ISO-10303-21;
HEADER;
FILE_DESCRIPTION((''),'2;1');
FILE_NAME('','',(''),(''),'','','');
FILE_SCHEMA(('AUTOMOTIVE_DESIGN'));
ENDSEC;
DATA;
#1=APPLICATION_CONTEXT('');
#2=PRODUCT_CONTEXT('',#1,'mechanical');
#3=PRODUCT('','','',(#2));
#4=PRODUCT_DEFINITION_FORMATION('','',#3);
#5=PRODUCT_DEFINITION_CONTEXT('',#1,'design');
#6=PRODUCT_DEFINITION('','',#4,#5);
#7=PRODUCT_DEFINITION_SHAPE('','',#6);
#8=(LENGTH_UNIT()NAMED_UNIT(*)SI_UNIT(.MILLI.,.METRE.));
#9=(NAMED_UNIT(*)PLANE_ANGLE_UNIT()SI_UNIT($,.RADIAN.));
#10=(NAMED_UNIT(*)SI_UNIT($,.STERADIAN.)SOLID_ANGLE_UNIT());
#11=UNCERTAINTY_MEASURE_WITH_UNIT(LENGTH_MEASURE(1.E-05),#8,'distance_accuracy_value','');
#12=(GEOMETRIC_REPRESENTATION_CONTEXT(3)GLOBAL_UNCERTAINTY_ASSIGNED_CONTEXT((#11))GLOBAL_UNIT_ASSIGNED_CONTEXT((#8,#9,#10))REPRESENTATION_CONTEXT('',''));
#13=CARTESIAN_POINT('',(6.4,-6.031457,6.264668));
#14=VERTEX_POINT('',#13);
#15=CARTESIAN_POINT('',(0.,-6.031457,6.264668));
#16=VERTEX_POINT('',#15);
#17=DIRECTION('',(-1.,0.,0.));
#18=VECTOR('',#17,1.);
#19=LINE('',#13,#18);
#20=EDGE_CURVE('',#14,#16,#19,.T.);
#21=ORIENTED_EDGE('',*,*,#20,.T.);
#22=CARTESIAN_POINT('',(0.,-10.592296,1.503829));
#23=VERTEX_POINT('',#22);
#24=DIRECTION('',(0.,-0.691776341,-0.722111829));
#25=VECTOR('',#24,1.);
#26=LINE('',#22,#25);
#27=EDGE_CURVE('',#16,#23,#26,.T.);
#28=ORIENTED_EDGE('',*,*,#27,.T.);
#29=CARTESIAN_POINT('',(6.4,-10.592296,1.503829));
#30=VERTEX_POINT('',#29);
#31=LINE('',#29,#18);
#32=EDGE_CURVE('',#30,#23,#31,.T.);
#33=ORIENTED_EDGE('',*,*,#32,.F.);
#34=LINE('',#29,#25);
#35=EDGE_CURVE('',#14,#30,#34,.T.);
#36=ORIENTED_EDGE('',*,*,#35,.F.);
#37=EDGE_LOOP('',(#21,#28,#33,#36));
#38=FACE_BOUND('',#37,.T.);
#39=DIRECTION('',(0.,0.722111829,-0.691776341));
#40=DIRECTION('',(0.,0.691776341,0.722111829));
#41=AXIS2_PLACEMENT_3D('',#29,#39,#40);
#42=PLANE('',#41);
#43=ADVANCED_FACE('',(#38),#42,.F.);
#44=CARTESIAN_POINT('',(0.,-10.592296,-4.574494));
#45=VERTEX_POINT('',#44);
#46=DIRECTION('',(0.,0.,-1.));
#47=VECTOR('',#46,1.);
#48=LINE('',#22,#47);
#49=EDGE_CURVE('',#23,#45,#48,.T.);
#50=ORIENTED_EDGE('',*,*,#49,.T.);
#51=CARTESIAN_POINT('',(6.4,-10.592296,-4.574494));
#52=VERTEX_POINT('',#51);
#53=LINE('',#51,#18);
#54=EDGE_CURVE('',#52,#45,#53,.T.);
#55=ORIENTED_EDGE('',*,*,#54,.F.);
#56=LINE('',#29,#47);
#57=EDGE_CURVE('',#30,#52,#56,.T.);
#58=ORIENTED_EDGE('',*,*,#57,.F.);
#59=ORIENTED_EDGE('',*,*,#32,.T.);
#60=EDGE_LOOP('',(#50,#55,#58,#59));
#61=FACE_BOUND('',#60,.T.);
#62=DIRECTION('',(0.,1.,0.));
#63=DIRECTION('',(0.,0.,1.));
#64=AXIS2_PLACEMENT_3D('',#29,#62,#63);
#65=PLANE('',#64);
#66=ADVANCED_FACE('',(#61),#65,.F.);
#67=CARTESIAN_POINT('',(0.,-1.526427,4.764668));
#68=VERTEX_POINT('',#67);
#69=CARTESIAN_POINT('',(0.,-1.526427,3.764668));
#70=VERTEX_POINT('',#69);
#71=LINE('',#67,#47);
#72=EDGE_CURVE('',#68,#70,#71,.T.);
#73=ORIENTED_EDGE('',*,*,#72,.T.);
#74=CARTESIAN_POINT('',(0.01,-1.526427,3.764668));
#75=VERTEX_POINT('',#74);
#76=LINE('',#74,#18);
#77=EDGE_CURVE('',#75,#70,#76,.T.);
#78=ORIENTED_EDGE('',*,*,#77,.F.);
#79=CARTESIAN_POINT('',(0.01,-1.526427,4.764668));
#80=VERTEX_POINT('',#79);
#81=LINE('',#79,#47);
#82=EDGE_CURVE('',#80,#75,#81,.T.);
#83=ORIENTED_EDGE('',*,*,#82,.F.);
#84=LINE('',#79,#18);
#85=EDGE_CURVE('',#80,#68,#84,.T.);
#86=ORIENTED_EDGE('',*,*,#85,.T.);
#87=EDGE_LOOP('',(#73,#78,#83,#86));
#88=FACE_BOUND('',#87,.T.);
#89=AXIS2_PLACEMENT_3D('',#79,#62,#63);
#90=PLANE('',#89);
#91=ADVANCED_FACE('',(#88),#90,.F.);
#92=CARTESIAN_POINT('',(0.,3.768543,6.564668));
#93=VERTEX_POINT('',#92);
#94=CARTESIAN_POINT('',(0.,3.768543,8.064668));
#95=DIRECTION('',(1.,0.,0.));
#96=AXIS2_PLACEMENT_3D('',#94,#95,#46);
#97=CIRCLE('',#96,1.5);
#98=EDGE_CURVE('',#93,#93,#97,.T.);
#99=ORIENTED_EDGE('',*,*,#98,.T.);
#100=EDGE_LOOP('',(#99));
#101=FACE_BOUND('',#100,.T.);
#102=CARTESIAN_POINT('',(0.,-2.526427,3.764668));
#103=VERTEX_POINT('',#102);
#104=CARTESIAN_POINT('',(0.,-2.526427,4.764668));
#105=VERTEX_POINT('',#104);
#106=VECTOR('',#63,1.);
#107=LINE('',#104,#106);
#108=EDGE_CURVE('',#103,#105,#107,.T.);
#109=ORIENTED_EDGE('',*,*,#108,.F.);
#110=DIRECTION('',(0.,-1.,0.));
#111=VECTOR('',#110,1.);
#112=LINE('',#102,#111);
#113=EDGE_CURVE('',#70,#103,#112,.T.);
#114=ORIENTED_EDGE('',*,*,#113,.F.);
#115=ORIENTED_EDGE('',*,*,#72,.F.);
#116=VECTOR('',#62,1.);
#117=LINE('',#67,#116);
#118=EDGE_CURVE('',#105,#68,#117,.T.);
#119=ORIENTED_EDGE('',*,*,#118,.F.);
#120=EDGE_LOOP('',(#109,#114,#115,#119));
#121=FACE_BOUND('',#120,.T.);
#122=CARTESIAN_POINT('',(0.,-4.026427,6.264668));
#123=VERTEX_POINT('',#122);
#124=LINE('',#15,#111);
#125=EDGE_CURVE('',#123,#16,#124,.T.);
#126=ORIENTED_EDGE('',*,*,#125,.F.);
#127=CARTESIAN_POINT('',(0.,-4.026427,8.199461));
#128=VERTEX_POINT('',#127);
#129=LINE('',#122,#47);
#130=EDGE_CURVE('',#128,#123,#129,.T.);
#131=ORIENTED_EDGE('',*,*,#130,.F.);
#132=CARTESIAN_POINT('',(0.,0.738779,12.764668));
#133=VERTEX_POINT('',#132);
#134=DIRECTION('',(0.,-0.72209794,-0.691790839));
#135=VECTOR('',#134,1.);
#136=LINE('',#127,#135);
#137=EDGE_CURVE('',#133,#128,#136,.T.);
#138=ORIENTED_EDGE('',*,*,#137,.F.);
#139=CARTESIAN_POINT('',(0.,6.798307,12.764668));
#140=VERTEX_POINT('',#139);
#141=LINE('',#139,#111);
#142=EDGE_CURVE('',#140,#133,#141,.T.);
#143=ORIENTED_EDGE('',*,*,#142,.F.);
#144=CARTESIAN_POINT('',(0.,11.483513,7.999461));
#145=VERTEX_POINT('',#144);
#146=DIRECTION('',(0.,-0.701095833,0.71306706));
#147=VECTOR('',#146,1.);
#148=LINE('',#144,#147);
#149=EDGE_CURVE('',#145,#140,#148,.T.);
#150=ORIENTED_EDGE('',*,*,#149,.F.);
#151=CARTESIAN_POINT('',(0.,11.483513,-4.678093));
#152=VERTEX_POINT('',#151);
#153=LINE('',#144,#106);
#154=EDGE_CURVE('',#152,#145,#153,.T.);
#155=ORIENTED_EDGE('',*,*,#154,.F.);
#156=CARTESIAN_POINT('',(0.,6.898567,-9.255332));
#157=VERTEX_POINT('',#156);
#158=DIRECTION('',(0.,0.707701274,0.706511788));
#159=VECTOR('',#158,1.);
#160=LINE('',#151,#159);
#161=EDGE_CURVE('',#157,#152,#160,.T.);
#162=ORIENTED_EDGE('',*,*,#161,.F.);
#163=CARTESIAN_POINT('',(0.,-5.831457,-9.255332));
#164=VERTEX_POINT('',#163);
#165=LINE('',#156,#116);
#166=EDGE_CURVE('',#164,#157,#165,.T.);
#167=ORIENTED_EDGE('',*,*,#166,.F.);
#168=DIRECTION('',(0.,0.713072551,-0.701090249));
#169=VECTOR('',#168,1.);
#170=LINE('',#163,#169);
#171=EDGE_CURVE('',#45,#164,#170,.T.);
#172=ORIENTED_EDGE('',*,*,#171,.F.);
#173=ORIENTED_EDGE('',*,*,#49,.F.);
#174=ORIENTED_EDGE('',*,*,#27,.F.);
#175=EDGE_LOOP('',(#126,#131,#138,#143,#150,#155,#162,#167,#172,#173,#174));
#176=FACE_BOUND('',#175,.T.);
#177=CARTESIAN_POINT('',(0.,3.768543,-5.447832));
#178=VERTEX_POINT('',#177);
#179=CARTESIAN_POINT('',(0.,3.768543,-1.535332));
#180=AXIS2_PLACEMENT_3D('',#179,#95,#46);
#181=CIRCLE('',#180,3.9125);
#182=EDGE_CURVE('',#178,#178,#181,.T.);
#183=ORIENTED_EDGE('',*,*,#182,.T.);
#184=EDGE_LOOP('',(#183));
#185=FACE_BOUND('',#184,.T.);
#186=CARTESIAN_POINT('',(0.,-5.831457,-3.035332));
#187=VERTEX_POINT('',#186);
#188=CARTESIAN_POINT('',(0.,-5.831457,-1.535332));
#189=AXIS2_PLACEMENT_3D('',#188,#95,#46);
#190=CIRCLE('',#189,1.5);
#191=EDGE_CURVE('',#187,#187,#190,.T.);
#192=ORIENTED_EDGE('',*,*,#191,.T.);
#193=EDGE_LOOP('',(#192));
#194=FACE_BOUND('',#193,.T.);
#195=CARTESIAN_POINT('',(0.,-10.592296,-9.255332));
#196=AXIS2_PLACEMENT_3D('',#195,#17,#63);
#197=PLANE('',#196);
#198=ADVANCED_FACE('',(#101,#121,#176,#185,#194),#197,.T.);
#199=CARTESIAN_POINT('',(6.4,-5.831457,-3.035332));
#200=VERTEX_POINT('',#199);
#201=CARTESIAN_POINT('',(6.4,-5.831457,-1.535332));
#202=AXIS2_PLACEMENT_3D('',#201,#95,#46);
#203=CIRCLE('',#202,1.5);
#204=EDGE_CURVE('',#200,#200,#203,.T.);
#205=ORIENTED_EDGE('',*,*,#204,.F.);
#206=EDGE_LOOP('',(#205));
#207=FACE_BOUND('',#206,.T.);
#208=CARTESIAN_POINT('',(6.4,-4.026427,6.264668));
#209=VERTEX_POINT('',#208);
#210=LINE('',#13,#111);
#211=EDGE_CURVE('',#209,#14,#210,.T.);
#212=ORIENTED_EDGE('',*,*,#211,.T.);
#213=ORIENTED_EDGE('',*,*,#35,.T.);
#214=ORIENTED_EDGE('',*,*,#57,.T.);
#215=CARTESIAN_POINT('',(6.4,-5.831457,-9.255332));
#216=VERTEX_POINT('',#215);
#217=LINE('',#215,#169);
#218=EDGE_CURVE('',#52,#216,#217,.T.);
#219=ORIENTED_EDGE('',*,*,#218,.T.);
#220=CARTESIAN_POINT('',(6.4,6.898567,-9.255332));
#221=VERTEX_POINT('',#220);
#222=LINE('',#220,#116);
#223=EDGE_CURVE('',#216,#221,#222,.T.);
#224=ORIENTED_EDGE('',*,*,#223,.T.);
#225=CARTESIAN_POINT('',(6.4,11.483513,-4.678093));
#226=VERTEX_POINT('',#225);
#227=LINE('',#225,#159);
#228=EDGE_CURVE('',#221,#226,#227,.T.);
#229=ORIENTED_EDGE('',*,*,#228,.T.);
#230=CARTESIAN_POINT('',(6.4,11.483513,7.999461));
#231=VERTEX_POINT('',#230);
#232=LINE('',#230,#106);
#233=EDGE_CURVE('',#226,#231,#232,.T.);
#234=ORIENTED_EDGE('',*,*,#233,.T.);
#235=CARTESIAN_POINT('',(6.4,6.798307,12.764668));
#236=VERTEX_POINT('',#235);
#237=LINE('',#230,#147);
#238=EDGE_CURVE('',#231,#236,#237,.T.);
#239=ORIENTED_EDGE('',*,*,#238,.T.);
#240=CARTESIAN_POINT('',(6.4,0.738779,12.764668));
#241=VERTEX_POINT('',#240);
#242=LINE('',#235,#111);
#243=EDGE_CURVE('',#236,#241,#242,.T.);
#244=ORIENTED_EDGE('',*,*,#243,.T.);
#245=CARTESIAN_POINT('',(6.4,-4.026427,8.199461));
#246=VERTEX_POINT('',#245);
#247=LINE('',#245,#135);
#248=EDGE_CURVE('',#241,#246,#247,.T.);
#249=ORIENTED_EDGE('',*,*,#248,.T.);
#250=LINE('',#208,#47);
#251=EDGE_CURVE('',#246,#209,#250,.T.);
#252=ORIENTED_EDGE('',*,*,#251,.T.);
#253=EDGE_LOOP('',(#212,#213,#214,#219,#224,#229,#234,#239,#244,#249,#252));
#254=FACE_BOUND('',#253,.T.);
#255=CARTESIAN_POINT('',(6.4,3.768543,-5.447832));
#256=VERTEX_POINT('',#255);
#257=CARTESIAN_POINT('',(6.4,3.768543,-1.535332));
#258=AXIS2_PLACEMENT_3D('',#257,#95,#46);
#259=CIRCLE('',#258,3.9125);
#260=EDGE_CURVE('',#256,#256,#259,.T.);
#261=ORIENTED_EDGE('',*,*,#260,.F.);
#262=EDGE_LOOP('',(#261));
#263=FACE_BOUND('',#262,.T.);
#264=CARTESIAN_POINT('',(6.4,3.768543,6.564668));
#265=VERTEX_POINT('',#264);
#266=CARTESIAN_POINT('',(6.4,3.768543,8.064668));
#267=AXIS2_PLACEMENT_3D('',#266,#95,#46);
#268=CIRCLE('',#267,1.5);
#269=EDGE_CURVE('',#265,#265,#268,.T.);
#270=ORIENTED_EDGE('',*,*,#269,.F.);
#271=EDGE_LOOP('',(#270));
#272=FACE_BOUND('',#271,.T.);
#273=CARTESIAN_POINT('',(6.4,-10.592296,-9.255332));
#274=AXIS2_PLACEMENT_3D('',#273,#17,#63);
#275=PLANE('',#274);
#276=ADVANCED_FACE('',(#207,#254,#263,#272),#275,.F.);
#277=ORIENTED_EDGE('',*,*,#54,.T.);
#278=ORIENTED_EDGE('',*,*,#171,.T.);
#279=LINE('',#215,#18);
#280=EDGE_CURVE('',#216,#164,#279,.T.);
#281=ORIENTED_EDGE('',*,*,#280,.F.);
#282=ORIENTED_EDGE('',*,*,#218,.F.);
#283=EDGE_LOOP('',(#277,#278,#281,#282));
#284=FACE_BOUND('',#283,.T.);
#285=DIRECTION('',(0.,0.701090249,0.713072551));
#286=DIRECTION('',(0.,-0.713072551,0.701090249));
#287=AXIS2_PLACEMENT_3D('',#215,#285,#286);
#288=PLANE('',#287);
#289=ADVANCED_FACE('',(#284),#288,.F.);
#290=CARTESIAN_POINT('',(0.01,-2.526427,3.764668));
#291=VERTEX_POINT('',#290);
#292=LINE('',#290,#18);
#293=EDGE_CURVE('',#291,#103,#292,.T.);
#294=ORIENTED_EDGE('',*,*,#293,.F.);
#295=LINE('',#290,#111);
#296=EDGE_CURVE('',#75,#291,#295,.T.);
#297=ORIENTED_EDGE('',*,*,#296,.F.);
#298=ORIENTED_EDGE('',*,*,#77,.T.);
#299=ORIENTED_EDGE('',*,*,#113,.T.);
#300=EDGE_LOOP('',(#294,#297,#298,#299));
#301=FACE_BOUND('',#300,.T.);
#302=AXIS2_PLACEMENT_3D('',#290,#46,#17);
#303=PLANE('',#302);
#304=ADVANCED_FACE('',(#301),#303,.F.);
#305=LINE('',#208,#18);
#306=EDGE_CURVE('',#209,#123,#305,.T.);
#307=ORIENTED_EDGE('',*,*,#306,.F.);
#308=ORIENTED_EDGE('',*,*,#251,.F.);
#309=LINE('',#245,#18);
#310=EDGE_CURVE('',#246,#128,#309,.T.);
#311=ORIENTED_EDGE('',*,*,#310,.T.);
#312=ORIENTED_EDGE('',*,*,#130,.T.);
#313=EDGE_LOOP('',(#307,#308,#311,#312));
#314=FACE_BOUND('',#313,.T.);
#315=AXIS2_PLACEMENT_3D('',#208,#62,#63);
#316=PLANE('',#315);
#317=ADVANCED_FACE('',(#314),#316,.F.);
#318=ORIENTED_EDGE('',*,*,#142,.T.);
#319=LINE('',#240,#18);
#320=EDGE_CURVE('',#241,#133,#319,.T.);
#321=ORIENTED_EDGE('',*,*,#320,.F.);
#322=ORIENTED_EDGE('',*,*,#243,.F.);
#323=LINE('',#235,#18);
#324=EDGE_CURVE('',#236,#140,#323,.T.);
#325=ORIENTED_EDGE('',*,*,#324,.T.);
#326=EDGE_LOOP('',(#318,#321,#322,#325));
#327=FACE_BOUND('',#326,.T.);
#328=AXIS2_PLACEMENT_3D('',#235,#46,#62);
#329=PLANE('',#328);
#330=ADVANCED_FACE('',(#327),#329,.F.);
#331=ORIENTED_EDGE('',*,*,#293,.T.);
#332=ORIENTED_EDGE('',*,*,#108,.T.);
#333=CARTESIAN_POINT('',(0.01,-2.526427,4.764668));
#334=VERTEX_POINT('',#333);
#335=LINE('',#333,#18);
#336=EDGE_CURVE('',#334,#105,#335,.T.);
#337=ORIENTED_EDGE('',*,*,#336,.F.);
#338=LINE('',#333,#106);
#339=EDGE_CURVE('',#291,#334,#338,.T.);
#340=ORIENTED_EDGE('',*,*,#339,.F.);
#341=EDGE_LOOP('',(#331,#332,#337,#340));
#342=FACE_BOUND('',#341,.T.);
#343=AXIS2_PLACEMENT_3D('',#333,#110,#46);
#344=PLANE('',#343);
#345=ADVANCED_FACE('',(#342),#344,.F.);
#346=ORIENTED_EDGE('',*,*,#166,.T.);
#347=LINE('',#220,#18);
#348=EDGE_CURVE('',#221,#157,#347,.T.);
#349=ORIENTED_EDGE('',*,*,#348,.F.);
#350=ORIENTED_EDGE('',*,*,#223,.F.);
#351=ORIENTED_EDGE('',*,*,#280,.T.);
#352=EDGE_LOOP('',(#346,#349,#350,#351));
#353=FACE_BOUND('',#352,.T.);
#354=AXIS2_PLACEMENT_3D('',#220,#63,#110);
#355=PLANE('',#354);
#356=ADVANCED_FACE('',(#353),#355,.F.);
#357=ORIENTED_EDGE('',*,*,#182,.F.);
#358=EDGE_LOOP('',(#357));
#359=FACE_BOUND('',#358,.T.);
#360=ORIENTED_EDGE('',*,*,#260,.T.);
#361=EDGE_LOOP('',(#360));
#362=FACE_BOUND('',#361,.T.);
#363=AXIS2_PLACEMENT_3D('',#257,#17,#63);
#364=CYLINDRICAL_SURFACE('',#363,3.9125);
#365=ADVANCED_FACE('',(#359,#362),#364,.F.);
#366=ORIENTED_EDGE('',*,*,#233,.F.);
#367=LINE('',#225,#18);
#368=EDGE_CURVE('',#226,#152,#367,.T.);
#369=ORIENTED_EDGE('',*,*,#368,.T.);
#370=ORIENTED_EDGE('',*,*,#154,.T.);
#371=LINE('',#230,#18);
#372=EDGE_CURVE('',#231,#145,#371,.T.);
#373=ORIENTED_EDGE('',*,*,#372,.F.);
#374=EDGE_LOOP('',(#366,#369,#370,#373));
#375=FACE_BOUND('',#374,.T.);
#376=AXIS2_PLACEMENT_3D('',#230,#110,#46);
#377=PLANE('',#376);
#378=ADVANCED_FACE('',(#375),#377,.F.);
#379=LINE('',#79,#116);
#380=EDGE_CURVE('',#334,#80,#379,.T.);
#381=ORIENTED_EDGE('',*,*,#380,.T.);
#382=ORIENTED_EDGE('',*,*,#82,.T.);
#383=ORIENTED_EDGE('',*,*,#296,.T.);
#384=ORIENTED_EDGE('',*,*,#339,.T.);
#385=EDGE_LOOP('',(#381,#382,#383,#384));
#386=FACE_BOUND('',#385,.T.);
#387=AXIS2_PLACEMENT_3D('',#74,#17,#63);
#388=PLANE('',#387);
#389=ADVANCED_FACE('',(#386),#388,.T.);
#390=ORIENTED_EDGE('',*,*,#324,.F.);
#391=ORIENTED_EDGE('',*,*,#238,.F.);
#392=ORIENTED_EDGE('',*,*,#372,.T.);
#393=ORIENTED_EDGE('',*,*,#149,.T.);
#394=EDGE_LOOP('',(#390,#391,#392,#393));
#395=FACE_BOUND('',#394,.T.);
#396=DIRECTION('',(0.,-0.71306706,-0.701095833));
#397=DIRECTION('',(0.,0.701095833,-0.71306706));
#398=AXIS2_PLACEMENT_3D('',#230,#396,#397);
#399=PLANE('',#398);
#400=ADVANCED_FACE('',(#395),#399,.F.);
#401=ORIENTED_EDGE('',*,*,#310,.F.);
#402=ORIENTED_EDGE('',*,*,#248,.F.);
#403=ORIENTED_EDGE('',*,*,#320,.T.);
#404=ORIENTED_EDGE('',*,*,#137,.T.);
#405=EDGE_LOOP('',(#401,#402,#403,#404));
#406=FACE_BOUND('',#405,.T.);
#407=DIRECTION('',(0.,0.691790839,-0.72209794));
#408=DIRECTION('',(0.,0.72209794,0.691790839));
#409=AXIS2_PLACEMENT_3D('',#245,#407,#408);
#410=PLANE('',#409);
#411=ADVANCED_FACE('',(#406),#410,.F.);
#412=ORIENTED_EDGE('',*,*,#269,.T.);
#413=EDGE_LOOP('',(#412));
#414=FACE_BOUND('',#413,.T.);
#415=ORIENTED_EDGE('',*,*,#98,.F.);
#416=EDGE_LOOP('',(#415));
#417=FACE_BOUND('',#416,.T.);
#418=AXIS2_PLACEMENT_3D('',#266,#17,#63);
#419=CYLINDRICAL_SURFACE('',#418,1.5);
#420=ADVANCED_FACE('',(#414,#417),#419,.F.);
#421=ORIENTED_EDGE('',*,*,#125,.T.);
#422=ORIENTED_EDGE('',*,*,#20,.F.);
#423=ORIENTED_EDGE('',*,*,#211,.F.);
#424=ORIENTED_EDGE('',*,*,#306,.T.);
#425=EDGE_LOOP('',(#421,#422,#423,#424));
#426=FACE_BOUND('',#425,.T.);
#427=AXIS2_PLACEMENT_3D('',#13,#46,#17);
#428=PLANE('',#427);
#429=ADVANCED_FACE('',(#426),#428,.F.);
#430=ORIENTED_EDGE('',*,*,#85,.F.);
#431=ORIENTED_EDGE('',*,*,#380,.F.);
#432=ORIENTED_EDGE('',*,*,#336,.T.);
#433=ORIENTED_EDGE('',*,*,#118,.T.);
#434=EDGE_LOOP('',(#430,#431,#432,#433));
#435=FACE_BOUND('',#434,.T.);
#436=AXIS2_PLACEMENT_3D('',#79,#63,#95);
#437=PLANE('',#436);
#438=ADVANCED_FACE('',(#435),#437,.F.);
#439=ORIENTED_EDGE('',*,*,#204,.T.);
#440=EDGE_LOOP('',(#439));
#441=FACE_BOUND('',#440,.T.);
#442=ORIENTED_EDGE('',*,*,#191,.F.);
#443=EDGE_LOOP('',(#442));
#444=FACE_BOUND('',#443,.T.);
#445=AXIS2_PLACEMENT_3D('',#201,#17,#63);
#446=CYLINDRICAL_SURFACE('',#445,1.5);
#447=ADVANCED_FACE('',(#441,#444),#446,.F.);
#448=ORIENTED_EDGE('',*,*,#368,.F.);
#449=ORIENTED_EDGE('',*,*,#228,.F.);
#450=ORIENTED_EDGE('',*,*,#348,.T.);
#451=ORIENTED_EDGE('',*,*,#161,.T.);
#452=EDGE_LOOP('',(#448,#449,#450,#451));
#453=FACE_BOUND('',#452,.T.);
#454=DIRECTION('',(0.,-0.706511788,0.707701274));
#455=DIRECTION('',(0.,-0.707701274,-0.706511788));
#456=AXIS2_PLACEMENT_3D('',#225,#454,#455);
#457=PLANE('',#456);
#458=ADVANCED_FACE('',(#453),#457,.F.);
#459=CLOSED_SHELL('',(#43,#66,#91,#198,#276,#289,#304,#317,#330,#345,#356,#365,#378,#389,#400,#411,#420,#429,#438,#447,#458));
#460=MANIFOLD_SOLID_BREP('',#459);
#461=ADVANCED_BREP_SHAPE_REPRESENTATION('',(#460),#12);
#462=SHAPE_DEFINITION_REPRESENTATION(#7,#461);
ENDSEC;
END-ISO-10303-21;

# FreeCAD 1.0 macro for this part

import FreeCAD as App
import Part
import Sketcher

V = App.Vector


def add_polygon(sketch, points):
    """Adds a closed chain of lines whose ends are joined by coincident constraints."""
    first, n = sketch.GeometryCount, len(points)
    for a, b in zip(points, points[1:] + points[:1]):
        sketch.addGeometry(Part.LineSegment(App.Vector(*a, 0), App.Vector(*b, 0)), False)
    for i in range(n):
        sketch.addConstraint(Sketcher.Constraint("Coincident", first + i, 2, first + (i + 1) % n, 1))

doc = App.newDocument("Part")
body = doc.addObject("PartDesign::Body", "Body")

# Sketch on YZ plane
sketch1 = doc.addObject("Sketcher::SketchObject", "Sketch")
body.addObject(sketch1)
sketch1.AttachmentSupport = (doc.YZ_Plane, [""])
sketch1.MapMode = "FlatFace"
add_polygon(sketch1, [(-10.6, -4.6), (-5.8, -9.3), (6.9, -9.3), (11.5, -4.7), (11.5, 8), (6.8, 12.8), (0.7, 12.8), (-4, 8.2), (-4, 6.3), (-6, 6.3), (-10.6, 1.5)])  # lines 0-10
sketch1.addGeometry(Part.Circle(V(-5.8, -1.5, 0), V(0, 0, 1), 1.5), False)  # 11
sketch1.addGeometry(Part.Circle(V(3.8, -1.5, 0), V(0, 0, 1), 3.9), False)  # 12
sketch1.addGeometry(Part.Circle(V(3.8, 8.1, 0), V(0, 0, 1), 1.5), False)  # 13
sketch1.addConstraint(Sketcher.Constraint("Horizontal", 1))
sketch1.addConstraint(Sketcher.Constraint("Vertical", 3))
sketch1.addConstraint(Sketcher.Constraint("Horizontal", 5))
sketch1.addConstraint(Sketcher.Constraint("Vertical", 7))
sketch1.addConstraint(Sketcher.Constraint("Horizontal", 8))
sketch1.addConstraint(Sketcher.Constraint("Vertical", 10))
sketch1.addConstraint(Sketcher.Constraint("Equal", 11, 13))
sketch1.addConstraint(Sketcher.Constraint("Horizontal", 11, 3, 12, 3))
sketch1.addConstraint(Sketcher.Constraint("Vertical", 12, 3, 13, 3))
sketch1.addConstraint(Sketcher.Constraint("Vertical", 11, 3, 0, 2))
sketch1.addConstraint(Sketcher.Constraint("Diameter", 11, 3.0))
sketch1.addConstraint(Sketcher.Constraint("Diameter", 12, 7.825))
sketch1.addConstraint(Sketcher.Constraint("DistanceX", 11, 3, 12, 3, 9.6))
sketch1.addConstraint(Sketcher.Constraint("DistanceY", 12, 3, 13, 3, 9.6))
sketch1.addConstraint(Sketcher.Constraint("DistanceY", 13, 3, 4, 2, 4.7))
sketch1.addConstraint(Sketcher.Constraint("DistanceY", 7, 2, 13, 3, 1.8))
sketch1.addConstraint(Sketcher.Constraint("DistanceX", 8, 2, 11, 3, 0.2))
sketch1.addConstraint(Sketcher.Constraint("DistanceY", 0, 2, 11, 3, 7.72))
sketch1.addConstraint(Sketcher.Constraint("DistanceX", 8, 2, 8, 1, 2.00503))
sketch1.addConstraint(Sketcher.Constraint("Distance", 4, 6.68269))
sketch1.addConstraint(Sketcher.Constraint("Distance", 9, 6.592938))
sketch1.addConstraint(Sketcher.Constraint("DistanceX", 1, 1, 1, 2, 12.730024))
sketch1.addConstraint(Sketcher.Constraint("DistanceX", 5, 2, 5, 1, 6.059527))
sketch1.addConstraint(Sketcher.Constraint("DistanceY", 3, 1, 3, 2, 12.677554))
sketch1.addConstraint(Sketcher.Constraint("DistanceY", 7, 2, 7, 1, 1.934794))
sketch1.addConstraint(Sketcher.Constraint("DistanceY", 10, 2, 10, 1, 6.078323))
sketch1.addConstraint(Sketcher.Constraint("DistanceY", -1, 1, 3, 2, 7.999461))
sketch1.addConstraint(Sketcher.Constraint("DistanceX", -1, 1, 5, 2, 0.738779))
sketch1.addConstraint(Sketcher.Constraint("DistanceY", -1, 1, 6, 2, 8.199461))
sketch1.addConstraint(Sketcher.Constraint("DistanceY", -1, 1, 9, 2, 1.503829))
sketch1.addConstraint(Sketcher.Constraint("DistanceX", 12, 3, 2, 2, 7.71497))
pad1 = doc.addObject("PartDesign::Pad", "Pad")
body.addObject(pad1)
pad1.Profile = sketch1
pad1.Length = 6.4

# Sketch on YZ plane
sketch2 = doc.addObject("Sketcher::SketchObject", "Sketch001")
body.addObject(sketch2)
sketch2.AttachmentSupport = (doc.YZ_Plane, [""])
sketch2.MapMode = "FlatFace"
add_polygon(sketch2, [(-1.5, 3.8), (-2.5, 3.8), (-2.5, 4.8), (-1.5, 4.8)])  # lines 0-3
sketch2.addConstraint(Sketcher.Constraint("Horizontal", 0))
sketch2.addConstraint(Sketcher.Constraint("Vertical", 1))
sketch2.addConstraint(Sketcher.Constraint("Horizontal", 2))
sketch2.addConstraint(Sketcher.Constraint("Vertical", 3))
sketch2.addConstraint(Sketcher.Constraint("Equal", 2, 1))
sketch2.addConstraint(Sketcher.Constraint("DistanceX", 0, 2, 0, 1, 1.0))
sketch2.addConstraint(Sketcher.Constraint("DistanceX", 0, 2, -1, 1, 2.526427))
sketch2.addConstraint(Sketcher.Constraint("DistanceY", -1, 1, 0, 2, 3.764668))
pocket1 = doc.addObject("PartDesign::Pocket", "Pocket")
body.addObject(pocket1)
pocket1.Profile = sketch2
pocket1.Length = 0.01
pocket1.Reversed = True

doc.recompute()
